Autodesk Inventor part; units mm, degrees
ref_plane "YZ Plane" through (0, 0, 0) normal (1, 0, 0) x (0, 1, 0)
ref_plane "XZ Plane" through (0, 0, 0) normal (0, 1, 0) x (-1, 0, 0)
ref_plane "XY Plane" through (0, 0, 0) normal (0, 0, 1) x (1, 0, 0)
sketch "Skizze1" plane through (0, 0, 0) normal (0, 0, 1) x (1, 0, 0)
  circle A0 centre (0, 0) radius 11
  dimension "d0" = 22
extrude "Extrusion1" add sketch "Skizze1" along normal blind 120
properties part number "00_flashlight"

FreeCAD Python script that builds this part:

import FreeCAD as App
import Part
import Sketcher
from FreeCAD import Vector
Q = App.Units.Quantity

doc = App.newDocument("Part")
body = doc.addObject("PartDesign::Body", "Body")

sketch1 = doc.addObject("Sketcher::SketchObject", "Sketch")
body.addObject(sketch1)
sketch1.AttachmentSupport = (doc.XY_Plane, [""])
sketch1.MapMode = "FlatFace"
sketch1.addGeometry(Part.Circle(Vector(0, 0, 0), Vector(0, 0, 1), 11), False)
sketch1.addConstraint(Sketcher.Constraint("Coincident", 0, 3, -1, 1))
sketch1.addConstraint(Sketcher.Constraint("Diameter", 0, Q("22 mm")))
pad1 = doc.addObject("PartDesign::Pad", "Pad")
body.addObject(pad1)
pad1.Profile = sketch1
pad1.Length = 120

doc.recompute()
